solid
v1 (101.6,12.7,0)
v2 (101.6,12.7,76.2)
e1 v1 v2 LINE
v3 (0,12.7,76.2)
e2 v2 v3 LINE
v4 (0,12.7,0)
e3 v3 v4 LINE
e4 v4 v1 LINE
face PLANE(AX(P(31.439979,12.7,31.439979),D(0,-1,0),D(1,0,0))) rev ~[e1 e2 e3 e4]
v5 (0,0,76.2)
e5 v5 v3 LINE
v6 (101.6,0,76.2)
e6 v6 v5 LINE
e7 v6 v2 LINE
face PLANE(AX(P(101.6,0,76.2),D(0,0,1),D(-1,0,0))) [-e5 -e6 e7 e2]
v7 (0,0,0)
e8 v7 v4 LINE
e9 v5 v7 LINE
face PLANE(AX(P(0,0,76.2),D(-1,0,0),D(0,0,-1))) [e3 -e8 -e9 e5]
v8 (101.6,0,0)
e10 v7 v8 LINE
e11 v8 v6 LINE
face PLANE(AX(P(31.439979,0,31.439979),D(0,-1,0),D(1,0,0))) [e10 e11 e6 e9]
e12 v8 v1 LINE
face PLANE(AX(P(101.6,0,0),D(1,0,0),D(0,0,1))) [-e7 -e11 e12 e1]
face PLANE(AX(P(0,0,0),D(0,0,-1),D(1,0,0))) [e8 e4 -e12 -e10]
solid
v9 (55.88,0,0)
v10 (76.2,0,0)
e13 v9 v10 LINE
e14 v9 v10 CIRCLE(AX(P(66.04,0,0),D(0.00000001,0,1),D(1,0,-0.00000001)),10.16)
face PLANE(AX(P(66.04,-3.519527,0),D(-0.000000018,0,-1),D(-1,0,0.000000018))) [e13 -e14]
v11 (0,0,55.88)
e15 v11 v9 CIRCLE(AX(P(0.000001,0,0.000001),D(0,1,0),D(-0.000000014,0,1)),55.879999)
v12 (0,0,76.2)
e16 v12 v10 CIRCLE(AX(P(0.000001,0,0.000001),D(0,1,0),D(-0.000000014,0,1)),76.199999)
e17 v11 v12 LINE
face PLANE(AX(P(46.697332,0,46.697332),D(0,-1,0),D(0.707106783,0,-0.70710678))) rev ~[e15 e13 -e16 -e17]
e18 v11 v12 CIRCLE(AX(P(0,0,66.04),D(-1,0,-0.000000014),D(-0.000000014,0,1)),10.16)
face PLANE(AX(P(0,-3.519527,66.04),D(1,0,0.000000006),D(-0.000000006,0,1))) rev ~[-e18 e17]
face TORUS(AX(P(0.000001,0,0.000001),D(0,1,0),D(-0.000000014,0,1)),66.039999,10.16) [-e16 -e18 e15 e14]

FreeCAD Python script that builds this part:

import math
import FreeCAD as App
import Part
import Sketcher
Q = App.Units.Quantity


def add_polygon(sketch, points):
    """Adds a closed chain of lines whose ends are joined by coincident constraints."""
    first, n = sketch.GeometryCount, len(points)
    for a, b in zip(points, points[1:] + points[:1]):
        sketch.addGeometry(Part.LineSegment(App.Vector(*a, 0), App.Vector(*b, 0)), False)
    for i in range(n):
        sketch.addConstraint(Sketcher.Constraint("Coincident", first + i, 2, first + (i + 1) % n, 1))

doc = App.newDocument("Part")
body = doc.addObject("PartDesign::Body", "Body")

# Sketch on XZ plane
sketch1 = body.newObject("Sketcher::SketchObject", "Sketch")
sketch1.AttachmentSupport = (doc.getObject("XZ_Plane"), [""])
sketch1.MapMode = "FlatFace"
add_polygon(sketch1, [(0, 76), (0, 0), (102, 0), (102, 76)])  # lines 0-3
sketch1.addConstraint(Sketcher.Constraint("Vertical", 0))
sketch1.addConstraint(Sketcher.Constraint("Horizontal", 1))
sketch1.addConstraint(Sketcher.Constraint("Vertical", 2))
sketch1.addConstraint(Sketcher.Constraint("Horizontal", 3))
sketch1.addConstraint(Sketcher.Constraint("Coincident", 0, 2, -1, 1))
sketch1.addConstraint(Sketcher.Constraint("DistanceX", 1, 1, 1, 2, Q("4 in")))
sketch1.addConstraint(Sketcher.Constraint("DistanceY", 0, 2, 0, 1, Q("3 in")))
pad1 = body.newObject("PartDesign::Pad", "Pad")
pad1.Profile = sketch1
pad1.Length = Q("0.5 in")
pad1.Reversed = True
body2 = doc.addObject("PartDesign::Body", "Body001")

# Sketch on YZ plane
sketch2 = body2.newObject("Sketcher::SketchObject", "Sketch001")
sketch2.AttachmentSupport = (doc.getObject("YZ_Plane001"), [""])
sketch2.MapMode = "FlatFace"
sketch2.addGeometry(Part.ArcOfCircle(Part.Circle(App.Vector(0, 66, 0), App.Vector(0, 0, 1), 10), math.radians(90), math.radians(270)), False)
sketch2.addGeometry(Part.LineSegment(App.Vector(0, 56, 0), App.Vector(0, 76, 0)), False)
sketch2.addConstraint(Sketcher.Constraint("Coincident", 0, 1, 1, 2))
sketch2.addConstraint(Sketcher.Constraint("Coincident", 1, 1, 0, 2))
sketch2.addConstraint(Sketcher.Constraint("Vertical", 1))
sketch2.addConstraint(Sketcher.Constraint("PointOnObject", 0, 3, -2))
sketch2.addConstraint(Sketcher.Constraint("PointOnObject", 0, 1, -2))
sketch2.addConstraint(Sketcher.Constraint("Radius", 0, Q("0.4 in")))
sketch2.addConstraint(Sketcher.Constraint("DistanceY", -1, 1, 0, 1, Q("3 in")))

# Sketch on XZ plane
sketch3 = body2.newObject("Sketcher::SketchObject", "Sketch002")
sketch3.AttachmentSupport = (doc.getObject("XZ_Plane001"), [""])
sketch3.MapMode = "FlatFace"
sketch3.addGeometry(Part.ArcOfCircle(Part.Circle(App.Vector(0, 0, 0), App.Vector(0, 0, 1), 76), math.radians(0), math.radians(90)), False)
sketch3.addConstraint(Sketcher.Constraint("Coincident", 0, 3, -1, 1))
sketch3.addConstraint(Sketcher.Constraint("PointOnObject", 0, 1, -1))
sketch3.addConstraint(Sketcher.Constraint("PointOnObject", 0, 2, -2))
sketch3.addConstraint(Sketcher.Constraint("Radius", 0, Q("3 in")))
doc.recompute()

additivepipe = body2.newObject("PartDesign::AdditivePipe", "AdditivePipe")
additivepipe.Profile = sketch2
additivepipe.Spine = (sketch3, ["Edge1"])

doc.recompute()
